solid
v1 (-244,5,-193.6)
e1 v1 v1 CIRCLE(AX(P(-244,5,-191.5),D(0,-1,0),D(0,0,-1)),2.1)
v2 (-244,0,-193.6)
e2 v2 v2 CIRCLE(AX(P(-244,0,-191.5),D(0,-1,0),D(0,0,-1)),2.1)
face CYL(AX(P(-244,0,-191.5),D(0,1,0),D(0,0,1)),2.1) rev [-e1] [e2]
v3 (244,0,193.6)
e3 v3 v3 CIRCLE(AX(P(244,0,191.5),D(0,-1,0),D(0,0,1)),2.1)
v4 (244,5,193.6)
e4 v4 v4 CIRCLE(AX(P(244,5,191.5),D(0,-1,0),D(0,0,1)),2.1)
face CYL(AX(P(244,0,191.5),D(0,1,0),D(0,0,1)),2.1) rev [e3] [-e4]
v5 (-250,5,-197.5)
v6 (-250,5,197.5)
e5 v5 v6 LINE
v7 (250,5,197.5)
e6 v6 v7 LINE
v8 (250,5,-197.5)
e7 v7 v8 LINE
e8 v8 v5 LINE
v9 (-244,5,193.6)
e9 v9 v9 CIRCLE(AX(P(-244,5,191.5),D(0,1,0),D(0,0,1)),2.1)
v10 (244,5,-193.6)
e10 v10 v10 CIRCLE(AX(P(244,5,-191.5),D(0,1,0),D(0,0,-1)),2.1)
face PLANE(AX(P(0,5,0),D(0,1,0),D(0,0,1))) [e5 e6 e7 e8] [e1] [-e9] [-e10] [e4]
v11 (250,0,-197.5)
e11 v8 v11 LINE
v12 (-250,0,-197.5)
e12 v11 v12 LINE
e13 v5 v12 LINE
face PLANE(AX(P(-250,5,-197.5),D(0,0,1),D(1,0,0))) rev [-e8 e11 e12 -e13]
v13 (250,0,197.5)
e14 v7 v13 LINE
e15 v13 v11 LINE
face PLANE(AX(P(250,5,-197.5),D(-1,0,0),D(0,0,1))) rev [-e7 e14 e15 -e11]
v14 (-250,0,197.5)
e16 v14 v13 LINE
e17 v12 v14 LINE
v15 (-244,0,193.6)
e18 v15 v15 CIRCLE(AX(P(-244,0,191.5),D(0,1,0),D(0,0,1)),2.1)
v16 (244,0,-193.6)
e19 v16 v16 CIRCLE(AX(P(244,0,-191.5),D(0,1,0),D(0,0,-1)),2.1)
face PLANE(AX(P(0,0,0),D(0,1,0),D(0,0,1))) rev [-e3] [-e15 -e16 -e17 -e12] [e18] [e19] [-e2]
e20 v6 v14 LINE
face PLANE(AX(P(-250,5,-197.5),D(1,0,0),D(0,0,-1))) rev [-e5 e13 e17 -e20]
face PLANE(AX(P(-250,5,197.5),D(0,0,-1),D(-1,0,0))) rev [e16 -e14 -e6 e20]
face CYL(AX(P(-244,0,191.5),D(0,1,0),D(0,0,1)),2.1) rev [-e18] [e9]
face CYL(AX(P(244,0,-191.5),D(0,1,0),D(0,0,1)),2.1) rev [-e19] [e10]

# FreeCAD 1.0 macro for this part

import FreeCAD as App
import Part
import Sketcher
from FreeCAD import Vector

doc = App.newDocument("Part")
body = doc.addObject("PartDesign::Body", "Body")

# Sketch on XZ plane
sketch1 = doc.addObject("Sketcher::SketchObject", "Sketch")
body.addObject(sketch1)
sketch1.AttachmentSupport = (doc.XZ_Plane, [""])
sketch1.MapMode = "FlatFace"
sketch1.addGeometry([
    Part.LineSegment(Vector(-250, -198, 0), Vector(-250, 198, 0)),
    Part.LineSegment(Vector(-250, 198, 0), Vector(250, 198, 0)),
    Part.LineSegment(Vector(250, 198, 0), Vector(250, -198, 0)),
    Part.LineSegment(Vector(250, -198, 0), Vector(-250, -198, 0)),
], False)
sketch1.addConstraint([
    Sketcher.Constraint("Coincident", 0, 2, 1, 1),
    Sketcher.Constraint("Coincident", 1, 2, 2, 1),
    Sketcher.Constraint("Coincident", 2, 2, 3, 1),
    Sketcher.Constraint("Coincident", 3, 2, 0, 1),
    Sketcher.Constraint("Vertical", 0),
    Sketcher.Constraint("Horizontal", 1),
    Sketcher.Constraint("Vertical", 2),
    Sketcher.Constraint("Horizontal", 3),
    Sketcher.Constraint("Symmetric", 0, 2, 2, 2, -1, 1),
    Sketcher.Constraint("DistanceX", 1, 1, 1, 2, 500.0),
    Sketcher.Constraint("DistanceY", 0, 1, 0, 2, 395.0),
])
pad1 = doc.addObject("PartDesign::Pad", "Pad")
body.addObject(pad1)
pad1.Profile = sketch1
pad1.Length = 5
pad1.Reversed = True

# Sketch on XZ plane
sketch2 = doc.addObject("Sketcher::SketchObject", "Sketch001")
body.addObject(sketch2)
sketch2.AttachmentSupport = (doc.XZ_Plane, [""])
sketch2.MapMode = "FlatFace"
sketch2.AttachmentOffset = App.Placement(Vector(0, 0, -5), App.Rotation())
sketch2.addGeometry(Part.Circle(Vector(-244, 191.5, 0), Vector(0, 0, 1), 2.1), False)
sketch2.addConstraint([
    Sketcher.Constraint("Diameter", 0, 4.2),
    Sketcher.Constraint("DistanceX", 0, 3, -1, 1, 244.0),
    Sketcher.Constraint("DistanceY", -1, 1, 0, 3, 191.5),
])
pocket1 = doc.addObject("PartDesign::Pocket", "Pocket")
body.addObject(pocket1)
pocket1.Profile = sketch2
pocket1.Type = "ThroughAll"
pocket1.Reversed = True
doc.recompute()

mirrored = doc.addObject("PartDesign::Mirrored", "Mirrored")
body.addObject(mirrored)
mirrored.Originals = [pocket1]
mirrored.MirrorPlane = (doc.YZ_Plane, [""])
body.Tip = mirrored
doc.recompute()

mirrored2 = doc.addObject("PartDesign::Mirrored", "Mirrored001")
body.addObject(mirrored2)
mirrored2.Originals = [pocket1]
mirrored2.MirrorPlane = (doc.XY_Plane, [""])
body.Tip = mirrored2

# Sketch on XZ plane
sketch3 = doc.addObject("Sketcher::SketchObject", "Sketch002")
body.addObject(sketch3)
sketch3.AttachmentSupport = (doc.XZ_Plane, [""])
sketch3.MapMode = "FlatFace"
sketch3.AttachmentOffset = App.Placement(Vector(0, 0, -5), App.Rotation())
sketch3.addGeometry(Part.Circle(Vector(244, -191.5, 0), Vector(0, 0, 1), 2.1), False)
sketch3.addConstraint([
    Sketcher.Constraint("Diameter", 0, 4.2),
    Sketcher.Constraint("DistanceX", -1, 1, 0, 3, 244.0),
    Sketcher.Constraint("DistanceY", 0, 3, -1, 1, 191.5),
])
pocket2 = doc.addObject("PartDesign::Pocket", "Pocket001")
body.addObject(pocket2)
pocket2.Profile = sketch3
pocket2.Type = "ThroughAll"
pocket2.Reversed = True

doc.recompute()
